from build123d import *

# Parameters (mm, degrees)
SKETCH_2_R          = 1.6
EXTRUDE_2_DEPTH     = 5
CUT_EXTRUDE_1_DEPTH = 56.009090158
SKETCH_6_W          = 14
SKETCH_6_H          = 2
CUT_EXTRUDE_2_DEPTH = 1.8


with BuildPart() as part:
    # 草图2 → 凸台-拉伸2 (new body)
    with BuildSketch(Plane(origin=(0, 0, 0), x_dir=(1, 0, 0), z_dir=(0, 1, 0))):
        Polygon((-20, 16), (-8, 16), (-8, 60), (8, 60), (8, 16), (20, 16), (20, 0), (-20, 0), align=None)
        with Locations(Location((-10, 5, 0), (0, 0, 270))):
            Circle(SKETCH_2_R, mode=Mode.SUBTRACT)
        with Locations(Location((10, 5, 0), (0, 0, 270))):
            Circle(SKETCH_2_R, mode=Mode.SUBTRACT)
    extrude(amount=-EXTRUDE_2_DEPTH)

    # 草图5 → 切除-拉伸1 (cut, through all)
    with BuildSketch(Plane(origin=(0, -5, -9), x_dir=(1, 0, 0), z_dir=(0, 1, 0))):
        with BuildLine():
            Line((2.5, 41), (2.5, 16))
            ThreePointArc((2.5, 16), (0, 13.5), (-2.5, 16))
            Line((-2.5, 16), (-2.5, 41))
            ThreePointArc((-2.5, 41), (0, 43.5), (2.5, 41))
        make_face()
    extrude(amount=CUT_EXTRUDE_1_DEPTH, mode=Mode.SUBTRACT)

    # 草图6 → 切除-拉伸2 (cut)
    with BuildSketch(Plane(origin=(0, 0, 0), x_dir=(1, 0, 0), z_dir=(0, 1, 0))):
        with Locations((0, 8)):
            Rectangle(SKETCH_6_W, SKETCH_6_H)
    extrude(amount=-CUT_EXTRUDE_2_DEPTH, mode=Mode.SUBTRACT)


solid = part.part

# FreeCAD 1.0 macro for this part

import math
import FreeCAD as App
import Part
import Sketcher


def add_polygon(sketch, points):
    """Adds a closed chain of lines whose ends are joined by coincident constraints."""
    first, n = sketch.GeometryCount, len(points)
    for a, b in zip(points, points[1:] + points[:1]):
        sketch.addGeometry(Part.LineSegment(App.Vector(*a, 0), App.Vector(*b, 0)), False)
    for i in range(n):
        sketch.addConstraint(Sketcher.Constraint("Coincident", first + i, 2, first + (i + 1) % n, 1))

doc = App.newDocument("Part")
body = doc.addObject("PartDesign::Body", "Body")

sketch1 = body.newObject("Sketcher::SketchObject", "Sketch")
sketch1.AttachmentSupport = (doc.getObject("XZ_Plane"), [""])
sketch1.MapMode = "FlatFace"
add_polygon(sketch1, [(-8, -16), (-20, -16), (-20, 0), (20, 0), (20, -16), (8, -16), (8, -60), (-8, -60)])
sketch1.addGeometry(Part.Circle(App.Vector(10, -5, 0), App.Vector(0, 0, 1), 1.6), False)
sketch1.addGeometry(Part.Circle(App.Vector(-10, -5, 0), App.Vector(0, 0, 1), 1.6), False)
sketch1.addConstraint([
    Sketcher.Constraint("Horizontal", 0),
    Sketcher.Constraint("Vertical", 1),
    Sketcher.Constraint("Horizontal", 2),
    Sketcher.Constraint("Vertical", 3),
    Sketcher.Constraint("Horizontal", 4),
    Sketcher.Constraint("Vertical", 5),
    Sketcher.Constraint("Horizontal", 6),
    Sketcher.Constraint("Vertical", 7),
    Sketcher.Constraint("Equal", 8, 9),
    Sketcher.Constraint("Symmetric", 1, 2, 2, 2, -1, 1),
    Sketcher.Constraint("Symmetric", 8, 3, 9, 3, -2),
    Sketcher.Constraint("Symmetric", 4, 2, 7, 2, -2),
    Sketcher.Constraint("Equal", 6, 1),
    Sketcher.Constraint("Diameter", 8, 3.2),
    Sketcher.Constraint("DistanceX", 0, 2, 0, 1, 12.0),
    Sketcher.Constraint("DistanceX", 2, 1, 2, 2, 40.0),
    Sketcher.Constraint("DistanceY", 5, 2, 5, 1, 44.0),
    Sketcher.Constraint("DistanceX", -1, 1, 8, 3, 10.0),
    Sketcher.Constraint("DistanceY", 8, 3, -1, 1, 5.0),
])
pad1 = body.newObject("PartDesign::Pad", "Pad")
pad1.Profile = sketch1
pad1.Length = 5

sketch2 = body.newObject("Sketcher::SketchObject", "Sketch001")
sketch2.AttachmentSupport = (doc.getObject("XZ_Plane"), [""])
sketch2.MapMode = "FlatFace"
sketch2.AttachmentOffset = App.Placement(App.Vector(0, 0, 5), App.Rotation())
sketch2.addGeometry([
    Part.LineSegment(App.Vector(2.5, -25, 0), App.Vector(2.5, -50, 0)),
    Part.ArcOfCircle(Part.Circle(App.Vector(0, -50, 0), App.Vector(0, 0, 1), 2.5), math.radians(180), math.radians(360)),
    Part.LineSegment(App.Vector(-2.5, -50, 0), App.Vector(-2.5, -25, 0)),
    Part.ArcOfCircle(Part.Circle(App.Vector(0, -25, 0), App.Vector(0, 0, 1), 2.5), math.radians(0), math.radians(180)),
], False)
sketch2.addConstraint([
    Sketcher.Constraint("Tangent", 0, 2, 1, 2),
    Sketcher.Constraint("Tangent", 1, 1, 2, 1),
    Sketcher.Constraint("Tangent", 2, 2, 3, 2),
    Sketcher.Constraint("Tangent", 3, 1, 0, 1),
    Sketcher.Constraint("Vertical", 0),
    Sketcher.Constraint("Vertical", 2),
    Sketcher.Constraint("PointOnObject", 1, 3, -2),
    Sketcher.Constraint("Radius", 1, 2.5),
    Sketcher.Constraint("DistanceY", 0, 2, 0, 1, 25.0),
    Sketcher.Constraint("DistanceY", 1, 3, -1, 1, 50.0),
])
pocket1 = body.newObject("PartDesign::Pocket", "Pocket")
pocket1.Profile = sketch2
pocket1.Type = "ThroughAll"

sketch3 = body.newObject("Sketcher::SketchObject", "Sketch002")
sketch3.AttachmentSupport = (doc.getObject("XZ_Plane"), [""])
sketch3.MapMode = "FlatFace"
add_polygon(sketch3, [(-7, -9), (-7, -7), (7, -7), (7, -9)])
sketch3.addConstraint([
    Sketcher.Constraint("Vertical", 0),
    Sketcher.Constraint("Horizontal", 1),
    Sketcher.Constraint("Vertical", 2),
    Sketcher.Constraint("Horizontal", 3),
    Sketcher.Constraint("DistanceX", 1, 1, 1, 2, 14.0),
    Sketcher.Constraint("DistanceY", 0, 1, 0, 2, 2.0),
    Sketcher.Constraint("DistanceX", 0, 2, -1, 1, 7.0),
    Sketcher.Constraint("DistanceY", 0, 2, -1, 1, 7.0),
])
pocket2 = body.newObject("PartDesign::Pocket", "Pocket001")
pocket2.Profile = sketch3
pocket2.Length = 1.8
pocket2.Reversed = True

doc.recompute()
